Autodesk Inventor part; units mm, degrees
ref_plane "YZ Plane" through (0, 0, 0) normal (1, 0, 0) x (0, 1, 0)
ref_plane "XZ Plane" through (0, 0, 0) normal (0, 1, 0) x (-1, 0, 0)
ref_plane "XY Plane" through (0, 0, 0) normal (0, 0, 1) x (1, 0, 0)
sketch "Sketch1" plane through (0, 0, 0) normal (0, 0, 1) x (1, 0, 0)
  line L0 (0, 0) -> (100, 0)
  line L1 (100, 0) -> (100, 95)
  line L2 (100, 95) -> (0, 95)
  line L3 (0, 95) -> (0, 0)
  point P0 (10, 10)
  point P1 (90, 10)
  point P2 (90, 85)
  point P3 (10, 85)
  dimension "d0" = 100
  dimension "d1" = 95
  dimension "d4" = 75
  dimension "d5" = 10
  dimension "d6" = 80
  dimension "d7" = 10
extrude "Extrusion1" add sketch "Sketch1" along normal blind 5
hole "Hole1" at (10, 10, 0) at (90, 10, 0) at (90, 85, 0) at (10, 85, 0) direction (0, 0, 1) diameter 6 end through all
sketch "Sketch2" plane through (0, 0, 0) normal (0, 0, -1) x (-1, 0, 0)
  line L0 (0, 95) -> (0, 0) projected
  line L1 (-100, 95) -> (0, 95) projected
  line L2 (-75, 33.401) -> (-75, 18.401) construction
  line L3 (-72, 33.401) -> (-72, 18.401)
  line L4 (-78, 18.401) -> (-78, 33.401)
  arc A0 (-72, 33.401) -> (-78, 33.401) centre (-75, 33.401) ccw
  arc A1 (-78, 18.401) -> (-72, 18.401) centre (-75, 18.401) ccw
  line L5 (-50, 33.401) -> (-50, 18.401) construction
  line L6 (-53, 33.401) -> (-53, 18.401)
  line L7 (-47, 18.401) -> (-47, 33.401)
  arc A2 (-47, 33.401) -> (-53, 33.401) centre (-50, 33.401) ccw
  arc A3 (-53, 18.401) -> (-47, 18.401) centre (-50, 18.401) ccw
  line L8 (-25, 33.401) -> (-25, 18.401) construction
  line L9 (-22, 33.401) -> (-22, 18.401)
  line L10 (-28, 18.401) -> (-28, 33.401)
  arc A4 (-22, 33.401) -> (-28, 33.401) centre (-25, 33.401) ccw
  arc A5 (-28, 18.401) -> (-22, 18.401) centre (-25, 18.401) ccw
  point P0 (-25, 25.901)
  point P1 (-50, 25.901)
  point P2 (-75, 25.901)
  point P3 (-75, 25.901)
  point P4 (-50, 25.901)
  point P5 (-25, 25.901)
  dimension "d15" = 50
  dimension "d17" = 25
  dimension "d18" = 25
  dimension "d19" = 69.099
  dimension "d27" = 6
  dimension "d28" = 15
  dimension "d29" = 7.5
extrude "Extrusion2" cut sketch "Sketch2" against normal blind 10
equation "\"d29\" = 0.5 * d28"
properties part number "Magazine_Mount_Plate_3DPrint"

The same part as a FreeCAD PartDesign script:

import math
import FreeCAD as App
import Part
import Sketcher


def add_polygon(sketch, points):
    """Adds a closed chain of lines whose ends are joined by coincident constraints."""
    first, n = sketch.GeometryCount, len(points)
    for a, b in zip(points, points[1:] + points[:1]):
        sketch.addGeometry(Part.LineSegment(App.Vector(*a, 0), App.Vector(*b, 0)), False)
    for i in range(n):
        sketch.addConstraint(Sketcher.Constraint("Coincident", first + i, 2, first + (i + 1) % n, 1))

doc = App.newDocument("Part")
params = doc.addObject("Spreadsheet::Sheet", "Params")
for row, (alias, value) in enumerate([
    ("sketch1_width", "100 mm"),
    ("sketch1_height", "95 mm"),
    ("pad1_length", "5 mm"),
    ("sketch2_diameter", "6 mm"),
    ("hole_diameter", "6 mm"),
    ("sketch3_radius", "3 mm"),
    ("sketch3_height", "15 mm"),
    ("pocket1_length", "10 mm"),
], start=1):
    params.set(f"A{row}", alias)
    params.set(f"B{row}", "=" + value)
    params.setAlias(f"B{row}", alias)

body = doc.addObject("PartDesign::Body", "Body")

# Sketch on XY plane
sketch1 = body.newObject("Sketcher::SketchObject", "Sketch")
sketch1.AttachmentSupport = (doc.getObject("XY_Plane"), [""])
sketch1.MapMode = "FlatFace"
add_polygon(sketch1, [(0, 95), (0, 0), (100, 0), (100, 95)])  # lines 0-3
sketch1.addConstraint([
    Sketcher.Constraint("Vertical", 0),
    Sketcher.Constraint("Horizontal", 1),
    Sketcher.Constraint("Vertical", 2),
    Sketcher.Constraint("Horizontal", 3),
    Sketcher.Constraint("Coincident", 0, 2, -1, 1),
    Sketcher.Constraint("DistanceX", 1, 1, 1, 2, 100.0),
    Sketcher.Constraint("DistanceY", 0, 2, 0, 1, 95.0),
])
sketch1.setExpression("Constraints[9]", "Params.sketch1_width")
sketch1.setExpression("Constraints[10]", "Params.sketch1_height")
pad1 = body.newObject("PartDesign::Pad", "Pad")
pad1.Profile = sketch1
pad1.setExpression("Length", "Params.pad1_length")

# Sketch on XY plane
sketch2 = body.newObject("Sketcher::SketchObject", "Sketch001")
sketch2.AttachmentSupport = (doc.getObject("XY_Plane"), [""])
sketch2.MapMode = "FlatFace"
sketch2.addGeometry([
    Part.Circle(App.Vector(10, 10, 0), App.Vector(0, 0, 1), 3),
    Part.Circle(App.Vector(90, 10, 0), App.Vector(0, 0, 1), 3),
    Part.Circle(App.Vector(90, 85, 0), App.Vector(0, 0, 1), 3),
    Part.Circle(App.Vector(10, 85, 0), App.Vector(0, 0, 1), 3),
], False)
sketch2.addConstraint([
    Sketcher.Constraint("Equal", 0, 1),
    Sketcher.Constraint("Equal", 1, 2),
    Sketcher.Constraint("Equal", 2, 3),
    Sketcher.Constraint("Horizontal", 0, 3, 1, 3),
    Sketcher.Constraint("Horizontal", 2, 3, 3, 3),
    Sketcher.Constraint("Vertical", 1, 3, 2, 3),
    Sketcher.Constraint("Vertical", 0, 3, 3, 3),
    Sketcher.Constraint("Diameter", 0, 6.0),
    Sketcher.Constraint("DistanceX", -1, 1, 0, 3, 10.0),
    Sketcher.Constraint("DistanceY", -1, 1, 0, 3, 10.0),
    Sketcher.Constraint("DistanceX", -1, 1, 1, 3, 90.0),
    Sketcher.Constraint("DistanceY", -1, 1, 2, 3, 85.0),
])
sketch2.setExpression("Constraints[7]", "Params.sketch2_diameter")
doc.recompute()
hole = body.newObject("PartDesign::Hole", "Hole")
hole.Profile = sketch2
hole.ThreadType = "None"
hole.setExpression("Diameter", "Params.hole_diameter")
hole.DepthType = "ThroughAll"
hole.Reversed = True

# Sketch on XY plane
sketch3 = body.newObject("Sketcher::SketchObject", "Sketch002")
sketch3.AttachmentSupport = (doc.getObject("XY_Plane"), [""])
sketch3.MapMode = "FlatFace"
sketch3.addGeometry([
    Part.LineSegment(App.Vector(72, 18.401, 0), App.Vector(72, 33.401, 0)),  # 0
    Part.ArcOfCircle(Part.Circle(App.Vector(75, 33.401, 0), App.Vector(0, 0, 1), 3), math.radians(0), math.radians(180)),  # 1
    Part.LineSegment(App.Vector(78, 33.401, 0), App.Vector(78, 18.401, 0)),  # 2
    Part.ArcOfCircle(Part.Circle(App.Vector(75, 18.401, 0), App.Vector(0, 0, 1), 3), math.radians(180), math.radians(360)),  # 3
    Part.ArcOfCircle(Part.Circle(App.Vector(50, 33.401, 0), App.Vector(0, 0, 1), 3), math.radians(0), math.radians(180)),  # 4
    Part.LineSegment(App.Vector(53, 33.401, 0), App.Vector(53, 18.401, 0)),  # 5
    Part.ArcOfCircle(Part.Circle(App.Vector(50, 18.401, 0), App.Vector(0, 0, 1), 3), math.radians(180), math.radians(360)),  # 6
    Part.LineSegment(App.Vector(47, 18.401, 0), App.Vector(47, 33.401, 0)),  # 7
    Part.LineSegment(App.Vector(22, 18.401, 0), App.Vector(22, 33.401, 0)),  # 8
    Part.ArcOfCircle(Part.Circle(App.Vector(25, 33.401, 0), App.Vector(0, 0, 1), 3), math.radians(0), math.radians(180)),  # 9
    Part.LineSegment(App.Vector(28, 33.401, 0), App.Vector(28, 18.401, 0)),  # 10
    Part.ArcOfCircle(Part.Circle(App.Vector(25, 18.401, 0), App.Vector(0, 0, 1), 3), math.radians(180), math.radians(360)),  # 11
], False)
sketch3.addConstraint([
    Sketcher.Constraint("Tangent", 0, 2, 1, 2),
    Sketcher.Constraint("Tangent", 1, 1, 2, 1),
    Sketcher.Constraint("Tangent", 2, 2, 3, 2),
    Sketcher.Constraint("Tangent", 3, 1, 0, 1),
    Sketcher.Constraint("Tangent", 4, 1, 5, 1),
    Sketcher.Constraint("Tangent", 5, 2, 6, 2),
    Sketcher.Constraint("Tangent", 6, 1, 7, 1),
    Sketcher.Constraint("Tangent", 7, 2, 4, 2),
    Sketcher.Constraint("Tangent", 8, 2, 9, 2),
    Sketcher.Constraint("Tangent", 9, 1, 10, 1),
    Sketcher.Constraint("Tangent", 10, 2, 11, 2),
    Sketcher.Constraint("Tangent", 11, 1, 8, 1),
    Sketcher.Constraint("Vertical", 0),
    Sketcher.Constraint("Vertical", 2),
    Sketcher.Constraint("Vertical", 5),
    Sketcher.Constraint("Vertical", 7),
    Sketcher.Constraint("Vertical", 8),
    Sketcher.Constraint("Vertical", 10),
    Sketcher.Constraint("Equal", 3, 4),
    Sketcher.Constraint("Equal", 6, 9),
    Sketcher.Constraint("Horizontal", 1, 3, 4, 3),
    Sketcher.Constraint("Horizontal", 3, 3, 6, 3),
    Sketcher.Constraint("Horizontal", 4, 3, 9, 3),
    Sketcher.Constraint("Horizontal", 6, 3, 11, 3),
    Sketcher.Constraint("Radius", 1, 3.0),
    Sketcher.Constraint("DistanceY", 0, 1, 0, 2, 15.0),
    Sketcher.Constraint("DistanceX", -1, 1, 4, 3, 50.0),
    Sketcher.Constraint("DistanceX", -1, 1, 9, 3, 25.0),
    Sketcher.Constraint("DistanceX", 4, 3, 1, 3, 25.0),
    Sketcher.Constraint("DistanceY", -1, 1, 1, 3, 33.401),
])
sketch3.setExpression("Constraints[24]", "Params.sketch3_radius")
sketch3.setExpression("Constraints[25]", "Params.sketch3_height")
pocket1 = body.newObject("PartDesign::Pocket", "Pocket")
pocket1.Profile = sketch3
pocket1.setExpression("Length", "Params.pocket1_length")
pocket1.Reversed = True

doc.recompute()
